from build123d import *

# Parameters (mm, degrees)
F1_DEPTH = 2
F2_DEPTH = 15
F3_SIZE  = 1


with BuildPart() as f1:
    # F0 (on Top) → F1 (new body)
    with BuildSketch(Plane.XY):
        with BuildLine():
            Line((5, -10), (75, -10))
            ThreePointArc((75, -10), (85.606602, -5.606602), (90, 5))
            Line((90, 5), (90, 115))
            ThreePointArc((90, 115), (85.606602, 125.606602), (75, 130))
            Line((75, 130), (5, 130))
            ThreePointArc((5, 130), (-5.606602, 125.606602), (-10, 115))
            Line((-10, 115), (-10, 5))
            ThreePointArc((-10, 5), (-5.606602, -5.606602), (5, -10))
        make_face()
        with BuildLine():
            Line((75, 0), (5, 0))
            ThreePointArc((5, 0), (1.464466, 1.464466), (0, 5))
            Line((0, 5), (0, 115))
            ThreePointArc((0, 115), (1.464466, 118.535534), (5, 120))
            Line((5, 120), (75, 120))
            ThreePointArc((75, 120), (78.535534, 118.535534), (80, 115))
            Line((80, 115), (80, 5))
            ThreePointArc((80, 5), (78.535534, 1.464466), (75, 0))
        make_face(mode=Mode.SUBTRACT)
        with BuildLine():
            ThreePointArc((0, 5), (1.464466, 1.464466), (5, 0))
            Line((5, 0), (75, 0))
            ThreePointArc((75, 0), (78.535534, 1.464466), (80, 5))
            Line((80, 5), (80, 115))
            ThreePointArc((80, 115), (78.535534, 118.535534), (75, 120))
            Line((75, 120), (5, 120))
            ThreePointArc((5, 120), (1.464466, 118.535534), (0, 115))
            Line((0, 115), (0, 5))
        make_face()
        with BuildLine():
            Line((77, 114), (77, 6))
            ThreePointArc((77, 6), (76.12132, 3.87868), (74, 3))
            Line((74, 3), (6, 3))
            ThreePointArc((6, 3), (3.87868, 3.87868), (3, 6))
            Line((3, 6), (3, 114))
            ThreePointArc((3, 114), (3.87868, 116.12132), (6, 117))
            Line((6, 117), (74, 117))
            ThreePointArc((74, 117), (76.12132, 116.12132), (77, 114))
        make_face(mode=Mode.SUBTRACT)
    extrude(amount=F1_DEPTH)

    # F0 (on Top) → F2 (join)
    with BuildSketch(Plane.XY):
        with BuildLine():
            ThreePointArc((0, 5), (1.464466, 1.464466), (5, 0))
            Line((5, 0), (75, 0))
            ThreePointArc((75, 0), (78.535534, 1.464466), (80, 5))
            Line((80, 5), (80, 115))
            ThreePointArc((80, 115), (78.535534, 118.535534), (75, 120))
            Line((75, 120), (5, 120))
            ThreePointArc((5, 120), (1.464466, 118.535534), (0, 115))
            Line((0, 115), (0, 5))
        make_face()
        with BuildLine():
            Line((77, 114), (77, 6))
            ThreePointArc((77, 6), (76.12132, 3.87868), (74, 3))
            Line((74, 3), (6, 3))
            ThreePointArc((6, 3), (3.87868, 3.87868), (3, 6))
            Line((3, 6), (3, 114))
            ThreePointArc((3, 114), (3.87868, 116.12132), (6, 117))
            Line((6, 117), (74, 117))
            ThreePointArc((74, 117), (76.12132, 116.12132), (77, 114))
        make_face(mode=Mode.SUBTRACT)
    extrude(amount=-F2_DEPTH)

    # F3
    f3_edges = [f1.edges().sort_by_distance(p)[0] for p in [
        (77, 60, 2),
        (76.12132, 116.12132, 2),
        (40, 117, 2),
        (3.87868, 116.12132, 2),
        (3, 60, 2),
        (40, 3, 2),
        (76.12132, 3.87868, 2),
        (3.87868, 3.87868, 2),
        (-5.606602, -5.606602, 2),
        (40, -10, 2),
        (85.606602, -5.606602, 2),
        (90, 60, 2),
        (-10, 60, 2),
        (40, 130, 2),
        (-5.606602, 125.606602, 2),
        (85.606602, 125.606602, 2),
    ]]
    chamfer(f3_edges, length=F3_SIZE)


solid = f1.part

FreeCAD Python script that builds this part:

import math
import FreeCAD as App
import Part
import Sketcher

V = App.Vector


def edges_at(feature, points):
    """Names of the edges that pass closest to the given points."""
    edges = feature.Shape.Edges
    near = lambda p: min(range(len(edges)), key=lambda i: edges[i].distToShape(Part.Vertex(*p))[0])
    return sorted({f"Edge{near(p) + 1}" for p in points})

doc = App.newDocument("Part")
params = doc.addObject("Spreadsheet::Sheet", "Params")
for row, (alias, value) in enumerate([
    ("sketch1_radius", "14.999999 mm"),
    ("sketch1_radius2", "3.000001 mm"),
    ("sketch1_width", "70 mm"),
    ("sketch1_width2", "68 mm"),
    ("sketch1_height", "110 mm"),
    ("pad1_length", "2 mm"),
    ("sketch2_radius", "5 mm"),
    ("sketch2_radius2", "3.000001 mm"),
    ("sketch2_width", "70 mm"),
    ("sketch2_width2", "68 mm"),
    ("sketch2_height", "110 mm"),
    ("pad2_length", "15 mm"),
    ("chamfer_size", "1 mm"),
], start=1):
    params.set(f"A{row}", alias)
    params.set(f"B{row}", "=" + value)
    params.setAlias(f"B{row}", alias)

body = doc.addObject("PartDesign::Body", "Body")

# Sketch on XY plane
sketch1 = doc.addObject("Sketcher::SketchObject", "Sketch")
body.addObject(sketch1)
sketch1.AttachmentSupport = (doc.XY_Plane, [""])
sketch1.MapMode = "FlatFace"
sketch1.addGeometry([
    Part.LineSegment(V(5, -10, 0), V(75, -10, 0)),  # 0
    Part.ArcOfCircle(Part.Circle(V(75.000001, 4.999999, 0), V(0, 0, 1), 14.999999), math.radians(-90.000004), math.radians(0.000004)),  # 1
    Part.LineSegment(V(90, 5, 0), V(90, 115, 0)),  # 2
    Part.ArcOfCircle(Part.Circle(V(75.000001, 115.000001, 0), V(0, 0, 1), 14.999999), math.radians(-0.000004), math.radians(90.000004)),  # 3
    Part.LineSegment(V(75, 130, 0), V(5, 130, 0)),  # 4
    Part.ArcOfCircle(Part.Circle(V(4.999999, 115.000001, 0), V(0, 0, 1), 14.999999), math.radians(89.999996), math.radians(180.000004)),  # 5
    Part.LineSegment(V(-10, 115, 0), V(-10, 5, 0)),  # 6
    Part.ArcOfCircle(Part.Circle(V(4.999999, 4.999999, 0), V(0, 0, 1), 14.999999), math.radians(179.999996), math.radians(270.000004)),  # 7
    Part.ArcOfCircle(Part.Circle(V(73.999999, 113.999999, 0), V(0, 0, 1), 3.000001), math.radians(0.000022), math.radians(89.999978)),  # 8
    Part.LineSegment(V(77, 114, 0), V(77, 6, 0)),  # 9
    Part.ArcOfCircle(Part.Circle(V(73.999999, 6.000001, 0), V(0, 0, 1), 3.000001), math.radians(-89.999978), math.radians(-0.000022)),  # 10
    Part.LineSegment(V(74, 3, 0), V(6, 3, 0)),  # 11
    Part.ArcOfCircle(Part.Circle(V(6.000001, 6.000001, 0), V(0, 0, 1), 3.000001), math.radians(-179.999978), math.radians(-90.000022)),  # 12
    Part.LineSegment(V(3, 6, 0), V(3, 114, 0)),  # 13
    Part.ArcOfCircle(Part.Circle(V(6.000001, 113.999999, 0), V(0, 0, 1), 3.000001), math.radians(90.000022), math.radians(179.999978)),  # 14
    Part.LineSegment(V(6, 117, 0), V(74, 117, 0)),  # 15
], False)
sketch1.addConstraint([
    Sketcher.Constraint("Tangent", 0, 2, 1, 1),
    Sketcher.Constraint("Tangent", 1, 2, 2, 1),
    Sketcher.Constraint("Tangent", 2, 2, 3, 1),
    Sketcher.Constraint("Tangent", 3, 2, 4, 1),
    Sketcher.Constraint("Tangent", 4, 2, 5, 1),
    Sketcher.Constraint("Tangent", 5, 2, 6, 1),
    Sketcher.Constraint("Tangent", 6, 2, 7, 1),
    Sketcher.Constraint("Tangent", 7, 2, 0, 1),
    Sketcher.Constraint("Tangent", 8, 1, 9, 1),
    Sketcher.Constraint("Tangent", 9, 2, 10, 2),
    Sketcher.Constraint("Tangent", 10, 1, 11, 1),
    Sketcher.Constraint("Tangent", 11, 2, 12, 2),
    Sketcher.Constraint("Tangent", 12, 1, 13, 1),
    Sketcher.Constraint("Tangent", 13, 2, 14, 2),
    Sketcher.Constraint("Tangent", 14, 1, 15, 1),
    Sketcher.Constraint("Tangent", 15, 2, 8, 2),
    Sketcher.Constraint("Horizontal", 0),
    Sketcher.Constraint("Vertical", 2),
    Sketcher.Constraint("Horizontal", 4),
    Sketcher.Constraint("Vertical", 6),
    Sketcher.Constraint("Vertical", 9),
    Sketcher.Constraint("Horizontal", 11),
    Sketcher.Constraint("Vertical", 13),
    Sketcher.Constraint("Horizontal", 15),
    Sketcher.Constraint("Equal", 1, 3),
    Sketcher.Constraint("Equal", 3, 5),
    Sketcher.Constraint("Equal", 5, 7),
    Sketcher.Constraint("Equal", 8, 10),
    Sketcher.Constraint("Equal", 10, 12),
    Sketcher.Constraint("Equal", 12, 14),
    Sketcher.Constraint("Radius", 1, 14.999999),
    Sketcher.Constraint("Radius", 8, 3.000001),
    Sketcher.Constraint("DistanceX", 0, 1, 0, 2, 70.0),
    Sketcher.Constraint("DistanceX", 11, 2, 11, 1, 68.0),
    Sketcher.Constraint("DistanceY", 2, 1, 2, 2, 110.0),
    Sketcher.Constraint("DistanceY", 9, 2, 9, 1, 108.0),
    Sketcher.Constraint("DistanceX", -1, 1, 1, 3, 75.000001),
    Sketcher.Constraint("DistanceY", -1, 1, 1, 3, 4.999999),
    Sketcher.Constraint("DistanceX", -1, 1, 8, 3, 73.999999),
    Sketcher.Constraint("DistanceY", -1, 1, 8, 3, 113.999999),
])
sketch1.setExpression("Constraints[30]", "Params.sketch1_radius")
sketch1.setExpression("Constraints[31]", "Params.sketch1_radius2")
sketch1.setExpression("Constraints[32]", "Params.sketch1_width")
sketch1.setExpression("Constraints[33]", "Params.sketch1_width2")
sketch1.setExpression("Constraints[34]", "Params.sketch1_height")
pad1 = doc.addObject("PartDesign::Pad", "Pad")
body.addObject(pad1)
pad1.Profile = sketch1
pad1.setExpression("Length", "Params.pad1_length")

# Sketch on XY plane
sketch2 = doc.addObject("Sketcher::SketchObject", "Sketch001")
body.addObject(sketch2)
sketch2.AttachmentSupport = (doc.XY_Plane, [""])
sketch2.MapMode = "FlatFace"
sketch2.addGeometry([
    Part.ArcOfCircle(Part.Circle(V(5, 5, 0), V(0, 0, 1), 5), math.radians(179.999996), math.radians(270.000004)),  # 0
    Part.LineSegment(V(5, 0, 0), V(75, 0, 0)),  # 1
    Part.ArcOfCircle(Part.Circle(V(75, 5, 0), V(0, 0, 1), 5), math.radians(-90.000004), math.radians(0.000004)),  # 2
    Part.LineSegment(V(80, 5, 0), V(80, 115, 0)),  # 3
    Part.ArcOfCircle(Part.Circle(V(75, 115, 0), V(0, 0, 1), 5), math.radians(-0.000004), math.radians(90.000004)),  # 4
    Part.LineSegment(V(75, 120, 0), V(5, 120, 0)),  # 5
    Part.ArcOfCircle(Part.Circle(V(5, 115, 0), V(0, 0, 1), 5), math.radians(89.999996), math.radians(180.000004)),  # 6
    Part.LineSegment(V(0, 115, 0), V(0, 5, 0)),  # 7
    Part.ArcOfCircle(Part.Circle(V(73.999999, 113.999999, 0), V(0, 0, 1), 3.000001), math.radians(0.000022), math.radians(89.999978)),  # 8
    Part.LineSegment(V(77, 114, 0), V(77, 6, 0)),  # 9
    Part.ArcOfCircle(Part.Circle(V(73.999999, 6.000001, 0), V(0, 0, 1), 3.000001), math.radians(-89.999978), math.radians(-0.000022)),  # 10
    Part.LineSegment(V(74, 3, 0), V(6, 3, 0)),  # 11
    Part.ArcOfCircle(Part.Circle(V(6.000001, 6.000001, 0), V(0, 0, 1), 3.000001), math.radians(-179.999978), math.radians(-90.000022)),  # 12
    Part.LineSegment(V(3, 6, 0), V(3, 114, 0)),  # 13
    Part.ArcOfCircle(Part.Circle(V(6.000001, 113.999999, 0), V(0, 0, 1), 3.000001), math.radians(90.000022), math.radians(179.999978)),  # 14
    Part.LineSegment(V(6, 117, 0), V(74, 117, 0)),  # 15
], False)
sketch2.addConstraint([
    Sketcher.Constraint("Tangent", 0, 2, 1, 1),
    Sketcher.Constraint("Tangent", 1, 2, 2, 1),
    Sketcher.Constraint("Tangent", 2, 2, 3, 1),
    Sketcher.Constraint("Tangent", 3, 2, 4, 1),
    Sketcher.Constraint("Tangent", 4, 2, 5, 1),
    Sketcher.Constraint("Tangent", 5, 2, 6, 1),
    Sketcher.Constraint("Tangent", 6, 2, 7, 1),
    Sketcher.Constraint("Tangent", 7, 2, 0, 1),
    Sketcher.Constraint("Tangent", 8, 1, 9, 1),
    Sketcher.Constraint("Tangent", 9, 2, 10, 2),
    Sketcher.Constraint("Tangent", 10, 1, 11, 1),
    Sketcher.Constraint("Tangent", 11, 2, 12, 2),
    Sketcher.Constraint("Tangent", 12, 1, 13, 1),
    Sketcher.Constraint("Tangent", 13, 2, 14, 2),
    Sketcher.Constraint("Tangent", 14, 1, 15, 1),
    Sketcher.Constraint("Tangent", 15, 2, 8, 2),
    Sketcher.Constraint("Horizontal", 1),
    Sketcher.Constraint("Vertical", 3),
    Sketcher.Constraint("Horizontal", 5),
    Sketcher.Constraint("Vertical", 7),
    Sketcher.Constraint("Vertical", 9),
    Sketcher.Constraint("Horizontal", 11),
    Sketcher.Constraint("Vertical", 13),
    Sketcher.Constraint("Horizontal", 15),
    Sketcher.Constraint("Equal", 0, 2),
    Sketcher.Constraint("Equal", 2, 4),
    Sketcher.Constraint("Equal", 4, 6),
    Sketcher.Constraint("Equal", 8, 10),
    Sketcher.Constraint("Equal", 10, 12),
    Sketcher.Constraint("Equal", 12, 14),
    Sketcher.Constraint("PointOnObject", 0, 2, -1),
    Sketcher.Constraint("PointOnObject", 6, 2, -2),
    Sketcher.Constraint("Radius", 0, 5.0),
    Sketcher.Constraint("Radius", 8, 3.000001),
    Sketcher.Constraint("DistanceX", 1, 1, 1, 2, 70.0),
    Sketcher.Constraint("DistanceX", 11, 2, 11, 1, 68.0),
    Sketcher.Constraint("DistanceY", 3, 1, 3, 2, 110.0),
    Sketcher.Constraint("DistanceY", 9, 2, 9, 1, 108.0),
    Sketcher.Constraint("DistanceX", -1, 1, 8, 3, 73.999999),
    Sketcher.Constraint("DistanceY", -1, 1, 8, 3, 113.999999),
])
sketch2.setExpression("Constraints[32]", "Params.sketch2_radius")
sketch2.setExpression("Constraints[33]", "Params.sketch2_radius2")
sketch2.setExpression("Constraints[34]", "Params.sketch2_width")
sketch2.setExpression("Constraints[35]", "Params.sketch2_width2")
sketch2.setExpression("Constraints[36]", "Params.sketch2_height")
pad2 = doc.addObject("PartDesign::Pad", "Pad001")
body.addObject(pad2)
pad2.Profile = sketch2
pad2.setExpression("Length", "Params.pad2_length")
pad2.Reversed = True
doc.recompute()

chamfer = doc.addObject("PartDesign::Chamfer", "Chamfer")
body.addObject(chamfer)
chamfer.Base = (pad2, edges_at(pad2, [
    (77, 60, 2),
    (76.121, 116.121, 2),
    (40, 117, 2),
    (3.879, 116.121, 2),
    (3, 60, 2),
    (40, 3, 2),
    (76.121, 3.879, 2),
    (3.879, 3.879, 2),
    (-5.607, -5.607, 2),
    (40, -10, 2),
    (85.607, -5.607, 2),
    (90, 60, 2),
    (-10, 60, 2),
    (40, 130, 2),
    (-5.607, 125.607, 2),
    (85.607, 125.607, 2),
]))
chamfer.setExpression("Size", "Params.chamfer_size")

doc.recompute()
